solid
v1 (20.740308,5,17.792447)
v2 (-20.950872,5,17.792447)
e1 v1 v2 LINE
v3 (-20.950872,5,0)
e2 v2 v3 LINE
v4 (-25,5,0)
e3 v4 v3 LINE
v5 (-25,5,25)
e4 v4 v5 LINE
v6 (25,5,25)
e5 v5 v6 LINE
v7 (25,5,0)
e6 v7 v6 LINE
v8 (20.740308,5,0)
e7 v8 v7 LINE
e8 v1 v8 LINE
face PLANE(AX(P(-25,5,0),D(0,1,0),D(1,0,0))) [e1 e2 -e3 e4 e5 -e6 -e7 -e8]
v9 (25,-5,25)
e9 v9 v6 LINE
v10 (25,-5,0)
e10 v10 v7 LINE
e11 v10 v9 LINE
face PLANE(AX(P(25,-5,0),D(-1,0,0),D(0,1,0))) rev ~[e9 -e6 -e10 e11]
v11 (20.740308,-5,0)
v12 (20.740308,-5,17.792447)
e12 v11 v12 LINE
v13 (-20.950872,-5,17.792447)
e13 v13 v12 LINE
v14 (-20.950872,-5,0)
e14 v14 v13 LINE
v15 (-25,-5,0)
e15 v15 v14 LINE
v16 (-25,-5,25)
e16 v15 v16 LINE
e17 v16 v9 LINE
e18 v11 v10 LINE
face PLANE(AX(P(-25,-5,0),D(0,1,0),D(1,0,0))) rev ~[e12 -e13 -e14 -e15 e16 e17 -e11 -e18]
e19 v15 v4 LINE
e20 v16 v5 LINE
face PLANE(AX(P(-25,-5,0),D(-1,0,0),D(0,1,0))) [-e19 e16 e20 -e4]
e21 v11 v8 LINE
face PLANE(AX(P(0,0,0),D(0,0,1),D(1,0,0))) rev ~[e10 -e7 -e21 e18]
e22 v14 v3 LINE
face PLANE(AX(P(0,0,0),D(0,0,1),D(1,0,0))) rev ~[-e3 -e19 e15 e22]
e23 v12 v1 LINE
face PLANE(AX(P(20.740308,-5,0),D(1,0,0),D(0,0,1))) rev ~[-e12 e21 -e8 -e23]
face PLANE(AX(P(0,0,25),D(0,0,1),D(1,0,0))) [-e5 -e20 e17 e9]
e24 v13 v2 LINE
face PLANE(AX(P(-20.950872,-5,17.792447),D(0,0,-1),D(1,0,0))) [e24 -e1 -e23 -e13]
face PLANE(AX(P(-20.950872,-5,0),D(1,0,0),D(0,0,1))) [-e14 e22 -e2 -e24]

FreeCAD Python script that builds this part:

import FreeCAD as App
import Part
import Sketcher
Q = App.Units.Quantity

doc = App.newDocument("Part")
body = doc.addObject("PartDesign::Body", "Body")

# Sketch on XY plane
sketch1 = body.newObject("Sketcher::SketchObject", "Sketch")
sketch1.AttachmentSupport = (doc.getObject("XY_Plane"), [""])
sketch1.MapMode = "FlatFace"
sketch1.addGeometry(Part.LineSegment(App.Vector(-25, 5, 0), App.Vector(-25, -5, 0)), False)
sketch1.addGeometry(Part.LineSegment(App.Vector(-25, -5, 0), App.Vector(25, -5, 0)), False)
sketch1.addGeometry(Part.LineSegment(App.Vector(25, -5, 0), App.Vector(25, 5, 0)), False)
sketch1.addGeometry(Part.LineSegment(App.Vector(25, 5, 0), App.Vector(-25, 5, 0)), False)
sketch1.addConstraint(Sketcher.Constraint("Coincident", 0, 2, 1, 1))
sketch1.addConstraint(Sketcher.Constraint("Coincident", 1, 2, 2, 1))
sketch1.addConstraint(Sketcher.Constraint("Coincident", 2, 2, 3, 1))
sketch1.addConstraint(Sketcher.Constraint("Coincident", 3, 2, 0, 1))
sketch1.addConstraint(Sketcher.Constraint("Vertical", 0))
sketch1.addConstraint(Sketcher.Constraint("Horizontal", 1))
sketch1.addConstraint(Sketcher.Constraint("Vertical", 2))
sketch1.addConstraint(Sketcher.Constraint("Horizontal", 3))
sketch1.addConstraint(Sketcher.Constraint("Symmetric", 0, 2, 2, 2, -1, 1))
sketch1.addConstraint(Sketcher.Constraint("DistanceX", 1, 1, 1, 2, Q("50 mm")))
sketch1.addConstraint(Sketcher.Constraint("DistanceY", 0, 2, 0, 1, Q("10 mm")))
pad1 = body.newObject("PartDesign::Pad", "Pad")
pad1.Profile = sketch1
pad1.Length = 25

# Sketch on XZ plane
sketch2 = body.newObject("Sketcher::SketchObject", "Sketch001")
sketch2.AttachmentSupport = (doc.getObject("XZ_Plane"), [""])
sketch2.MapMode = "FlatFace"
sketch2.AttachmentOffset = App.Placement(App.Vector(0, 0, 5), App.Rotation())
sketch2.addGeometry(Part.LineSegment(App.Vector(-20.950872, 17.792447, 0), App.Vector(-20.950872, 0, 0)), False)
sketch2.addGeometry(Part.LineSegment(App.Vector(-20.950872, 0, 0), App.Vector(20.740308, 0, 0)), False)
sketch2.addGeometry(Part.LineSegment(App.Vector(20.740308, 0, 0), App.Vector(20.740308, 17.792447, 0)), False)
sketch2.addGeometry(Part.LineSegment(App.Vector(20.740308, 17.792447, 0), App.Vector(-20.950872, 17.792447, 0)), False)
sketch2.addConstraint(Sketcher.Constraint("Coincident", 0, 2, 1, 1))
sketch2.addConstraint(Sketcher.Constraint("Coincident", 1, 2, 2, 1))
sketch2.addConstraint(Sketcher.Constraint("Coincident", 2, 2, 3, 1))
sketch2.addConstraint(Sketcher.Constraint("Coincident", 3, 2, 0, 1))
sketch2.addConstraint(Sketcher.Constraint("Vertical", 0))
sketch2.addConstraint(Sketcher.Constraint("Horizontal", 1))
sketch2.addConstraint(Sketcher.Constraint("Vertical", 2))
sketch2.addConstraint(Sketcher.Constraint("Horizontal", 3))
sketch2.addConstraint(Sketcher.Constraint("PointOnObject", 0, 2, -1))
sketch2.addConstraint(Sketcher.Constraint("DistanceX", 1, 1, 1, 2, Q("41.691179 mm")))
sketch2.addConstraint(Sketcher.Constraint("DistanceY", 0, 2, 0, 1, Q("17.792447 mm")))
sketch2.addConstraint(Sketcher.Constraint("DistanceX", 0, 2, -1, 1, Q("20.950872 mm")))
pocket1 = body.newObject("PartDesign::Pocket", "Pocket")
pocket1.Profile = sketch2
pocket1.Type = "ThroughAll"

doc.recompute()
